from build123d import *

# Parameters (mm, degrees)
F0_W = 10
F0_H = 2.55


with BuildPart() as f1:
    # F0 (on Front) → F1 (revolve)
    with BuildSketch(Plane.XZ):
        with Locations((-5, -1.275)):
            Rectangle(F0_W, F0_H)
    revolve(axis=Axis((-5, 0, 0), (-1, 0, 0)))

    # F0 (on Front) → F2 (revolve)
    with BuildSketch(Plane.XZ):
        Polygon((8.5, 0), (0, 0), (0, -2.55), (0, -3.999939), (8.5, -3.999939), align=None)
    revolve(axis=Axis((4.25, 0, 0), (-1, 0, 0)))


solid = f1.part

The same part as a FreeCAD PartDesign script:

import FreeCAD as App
import Part
import Sketcher

doc = App.newDocument("Part")
body = doc.addObject("PartDesign::Body", "Body")

# Sketch on XZ plane
sketch1 = doc.addObject("Sketcher::SketchObject", "Sketch")
body.addObject(sketch1)
sketch1.AttachmentSupport = (doc.XZ_Plane, [""])
sketch1.MapMode = "FlatFace"
sketch1.addGeometry([
    Part.LineSegment(App.Vector(-10, 0, 0), App.Vector(-10, -2.5, 0)),
    Part.LineSegment(App.Vector(-10, -2.5, 0), App.Vector(0, -2.5, 0)),
    Part.LineSegment(App.Vector(0, -2.5, 0), App.Vector(0, 0, 0)),
    Part.LineSegment(App.Vector(0, 0, 0), App.Vector(-10, 0, 0)),
], False)
sketch1.addConstraint([
    Sketcher.Constraint("Coincident", 0, 2, 1, 1),
    Sketcher.Constraint("Coincident", 1, 2, 2, 1),
    Sketcher.Constraint("Coincident", 2, 2, 3, 1),
    Sketcher.Constraint("Coincident", 3, 2, 0, 1),
    Sketcher.Constraint("Vertical", 0),
    Sketcher.Constraint("Horizontal", 1),
    Sketcher.Constraint("Vertical", 2),
    Sketcher.Constraint("Horizontal", 3),
    Sketcher.Constraint("Coincident", 2, 2, -1, 1),
    Sketcher.Constraint("DistanceX", 1, 1, 1, 2, 10.0),
    Sketcher.Constraint("DistanceY", 0, 2, 0, 1, 2.55),
])
revolution = doc.addObject("PartDesign::Revolution", "Revolution")
body.addObject(revolution)
revolution.Profile = sketch1
revolution.ReferenceAxis = (sketch1, ["H_Axis"])
revolution.Angle = 360

# Sketch on XZ plane
sketch2 = doc.addObject("Sketcher::SketchObject", "Sketch001")
body.addObject(sketch2)
sketch2.AttachmentSupport = (doc.XZ_Plane, [""])
sketch2.MapMode = "FlatFace"
sketch2.addGeometry([
    Part.LineSegment(App.Vector(8.5, 0, 0), App.Vector(0, 0, 0)),
    Part.LineSegment(App.Vector(0, 0, 0), App.Vector(0, -4, 0)),
    Part.LineSegment(App.Vector(0, -4, 0), App.Vector(8.5, -4, 0)),
    Part.LineSegment(App.Vector(8.5, -4, 0), App.Vector(8.5, 0, 0)),
], False)
sketch2.addConstraint([
    Sketcher.Constraint("Coincident", 0, 2, 1, 1),
    Sketcher.Constraint("Coincident", 1, 2, 2, 1),
    Sketcher.Constraint("Coincident", 2, 2, 3, 1),
    Sketcher.Constraint("Coincident", 3, 2, 0, 1),
    Sketcher.Constraint("Horizontal", 0),
    Sketcher.Constraint("Vertical", 1),
    Sketcher.Constraint("Horizontal", 2),
    Sketcher.Constraint("Vertical", 3),
    Sketcher.Constraint("Coincident", 0, 2, -1, 1),
    Sketcher.Constraint("DistanceX", 0, 2, 0, 1, 8.5),
    Sketcher.Constraint("DistanceY", 1, 2, 1, 1, 3.999939),
])
revolution2 = doc.addObject("PartDesign::Revolution", "Revolution001")
body.addObject(revolution2)
revolution2.Profile = sketch2
revolution2.ReferenceAxis = (sketch2, ["H_Axis"])
revolution2.Angle = 360

doc.recompute()
